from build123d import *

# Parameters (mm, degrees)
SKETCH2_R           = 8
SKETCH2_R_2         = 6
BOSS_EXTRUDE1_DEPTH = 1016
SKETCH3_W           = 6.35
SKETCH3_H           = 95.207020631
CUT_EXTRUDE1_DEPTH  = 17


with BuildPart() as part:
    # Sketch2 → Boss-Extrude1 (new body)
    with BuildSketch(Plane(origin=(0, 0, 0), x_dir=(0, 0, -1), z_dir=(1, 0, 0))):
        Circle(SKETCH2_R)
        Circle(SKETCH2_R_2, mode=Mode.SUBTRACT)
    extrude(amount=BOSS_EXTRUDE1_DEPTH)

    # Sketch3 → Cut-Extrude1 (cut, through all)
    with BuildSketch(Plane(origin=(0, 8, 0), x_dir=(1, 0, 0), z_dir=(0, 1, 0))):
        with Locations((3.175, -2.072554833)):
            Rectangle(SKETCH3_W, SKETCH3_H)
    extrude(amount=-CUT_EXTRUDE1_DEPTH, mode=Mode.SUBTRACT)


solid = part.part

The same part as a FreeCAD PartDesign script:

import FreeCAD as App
import Part
import Sketcher
from FreeCAD import Vector


def add_polygon(sketch, points):
    """Adds a closed chain of lines whose ends are joined by coincident constraints."""
    first, n = sketch.GeometryCount, len(points)
    for a, b in zip(points, points[1:] + points[:1]):
        sketch.addGeometry(Part.LineSegment(App.Vector(*a, 0), App.Vector(*b, 0)), False)
    for i in range(n):
        sketch.addConstraint(Sketcher.Constraint("Coincident", first + i, 2, first + (i + 1) % n, 1))

doc = App.newDocument("Part")
params = doc.addObject("Spreadsheet::Sheet", "Params")
for row, (alias, value) in enumerate([
    ("sketch1_diameter", "16 mm"),
    ("sketch1_diameter2", "12 mm"),
    ("pad1_length", "1016 mm"),
    ("sketch2_width", "6.35 mm"),
], start=1):
    params.set(f"A{row}", alias)
    params.set(f"B{row}", "=" + value)
    params.setAlias(f"B{row}", alias)

body = doc.addObject("PartDesign::Body", "Body")

sketch1 = body.newObject("Sketcher::SketchObject", "Sketch")
sketch1.AttachmentSupport = (doc.getObject("YZ_Plane"), [""])
sketch1.MapMode = "FlatFace"
sketch1.addGeometry([
    Part.Circle(Vector(0, 0, 0), Vector(0, 0, 1), 8),
    Part.Circle(Vector(0, 0, 0), Vector(0, 0, 1), 6),
], False)
sketch1.addConstraint([
    Sketcher.Constraint("Coincident", 0, 3, -1, 1),
    Sketcher.Constraint("Coincident", 1, 3, -1, 1),
    Sketcher.Constraint("Diameter", 0, 16.0),
    Sketcher.Constraint("Diameter", 1, 12.0),
])
sketch1.setExpression("Constraints[2]", "Params.sketch1_diameter")
sketch1.setExpression("Constraints[3]", "Params.sketch1_diameter2")
pad1 = body.newObject("PartDesign::Pad", "Pad")
pad1.Profile = sketch1
pad1.setExpression("Length", "Params.pad1_length")

sketch2 = body.newObject("Sketcher::SketchObject", "Sketch001")
sketch2.AttachmentSupport = (doc.getObject("XZ_Plane"), [""])
sketch2.MapMode = "FlatFace"
sketch2.AttachmentOffset = App.Placement(Vector(0, 0, -8), App.Rotation())
add_polygon(sketch2, [(0, -45.530955), (0, 49.676065), (6.35, 49.676065), (6.35, -45.530955)])
sketch2.addConstraint([
    Sketcher.Constraint("Vertical", 0),
    Sketcher.Constraint("Horizontal", 1),
    Sketcher.Constraint("Vertical", 2),
    Sketcher.Constraint("Horizontal", 3),
    Sketcher.Constraint("PointOnObject", 0, 2, -2),
    Sketcher.Constraint("DistanceX", 1, 1, 1, 2, 6.35),
    Sketcher.Constraint("DistanceY", 0, 1, 0, 2, 95.207021),
    Sketcher.Constraint("DistanceY", -1, 1, 0, 2, 49.676065),
])
sketch2.setExpression("Constraints[9]", "Params.sketch2_width")
pocket1 = body.newObject("PartDesign::Pocket", "Pocket")
pocket1.Profile = sketch2
pocket1.Type = "ThroughAll"
pocket1.Reversed = True

doc.recompute()
